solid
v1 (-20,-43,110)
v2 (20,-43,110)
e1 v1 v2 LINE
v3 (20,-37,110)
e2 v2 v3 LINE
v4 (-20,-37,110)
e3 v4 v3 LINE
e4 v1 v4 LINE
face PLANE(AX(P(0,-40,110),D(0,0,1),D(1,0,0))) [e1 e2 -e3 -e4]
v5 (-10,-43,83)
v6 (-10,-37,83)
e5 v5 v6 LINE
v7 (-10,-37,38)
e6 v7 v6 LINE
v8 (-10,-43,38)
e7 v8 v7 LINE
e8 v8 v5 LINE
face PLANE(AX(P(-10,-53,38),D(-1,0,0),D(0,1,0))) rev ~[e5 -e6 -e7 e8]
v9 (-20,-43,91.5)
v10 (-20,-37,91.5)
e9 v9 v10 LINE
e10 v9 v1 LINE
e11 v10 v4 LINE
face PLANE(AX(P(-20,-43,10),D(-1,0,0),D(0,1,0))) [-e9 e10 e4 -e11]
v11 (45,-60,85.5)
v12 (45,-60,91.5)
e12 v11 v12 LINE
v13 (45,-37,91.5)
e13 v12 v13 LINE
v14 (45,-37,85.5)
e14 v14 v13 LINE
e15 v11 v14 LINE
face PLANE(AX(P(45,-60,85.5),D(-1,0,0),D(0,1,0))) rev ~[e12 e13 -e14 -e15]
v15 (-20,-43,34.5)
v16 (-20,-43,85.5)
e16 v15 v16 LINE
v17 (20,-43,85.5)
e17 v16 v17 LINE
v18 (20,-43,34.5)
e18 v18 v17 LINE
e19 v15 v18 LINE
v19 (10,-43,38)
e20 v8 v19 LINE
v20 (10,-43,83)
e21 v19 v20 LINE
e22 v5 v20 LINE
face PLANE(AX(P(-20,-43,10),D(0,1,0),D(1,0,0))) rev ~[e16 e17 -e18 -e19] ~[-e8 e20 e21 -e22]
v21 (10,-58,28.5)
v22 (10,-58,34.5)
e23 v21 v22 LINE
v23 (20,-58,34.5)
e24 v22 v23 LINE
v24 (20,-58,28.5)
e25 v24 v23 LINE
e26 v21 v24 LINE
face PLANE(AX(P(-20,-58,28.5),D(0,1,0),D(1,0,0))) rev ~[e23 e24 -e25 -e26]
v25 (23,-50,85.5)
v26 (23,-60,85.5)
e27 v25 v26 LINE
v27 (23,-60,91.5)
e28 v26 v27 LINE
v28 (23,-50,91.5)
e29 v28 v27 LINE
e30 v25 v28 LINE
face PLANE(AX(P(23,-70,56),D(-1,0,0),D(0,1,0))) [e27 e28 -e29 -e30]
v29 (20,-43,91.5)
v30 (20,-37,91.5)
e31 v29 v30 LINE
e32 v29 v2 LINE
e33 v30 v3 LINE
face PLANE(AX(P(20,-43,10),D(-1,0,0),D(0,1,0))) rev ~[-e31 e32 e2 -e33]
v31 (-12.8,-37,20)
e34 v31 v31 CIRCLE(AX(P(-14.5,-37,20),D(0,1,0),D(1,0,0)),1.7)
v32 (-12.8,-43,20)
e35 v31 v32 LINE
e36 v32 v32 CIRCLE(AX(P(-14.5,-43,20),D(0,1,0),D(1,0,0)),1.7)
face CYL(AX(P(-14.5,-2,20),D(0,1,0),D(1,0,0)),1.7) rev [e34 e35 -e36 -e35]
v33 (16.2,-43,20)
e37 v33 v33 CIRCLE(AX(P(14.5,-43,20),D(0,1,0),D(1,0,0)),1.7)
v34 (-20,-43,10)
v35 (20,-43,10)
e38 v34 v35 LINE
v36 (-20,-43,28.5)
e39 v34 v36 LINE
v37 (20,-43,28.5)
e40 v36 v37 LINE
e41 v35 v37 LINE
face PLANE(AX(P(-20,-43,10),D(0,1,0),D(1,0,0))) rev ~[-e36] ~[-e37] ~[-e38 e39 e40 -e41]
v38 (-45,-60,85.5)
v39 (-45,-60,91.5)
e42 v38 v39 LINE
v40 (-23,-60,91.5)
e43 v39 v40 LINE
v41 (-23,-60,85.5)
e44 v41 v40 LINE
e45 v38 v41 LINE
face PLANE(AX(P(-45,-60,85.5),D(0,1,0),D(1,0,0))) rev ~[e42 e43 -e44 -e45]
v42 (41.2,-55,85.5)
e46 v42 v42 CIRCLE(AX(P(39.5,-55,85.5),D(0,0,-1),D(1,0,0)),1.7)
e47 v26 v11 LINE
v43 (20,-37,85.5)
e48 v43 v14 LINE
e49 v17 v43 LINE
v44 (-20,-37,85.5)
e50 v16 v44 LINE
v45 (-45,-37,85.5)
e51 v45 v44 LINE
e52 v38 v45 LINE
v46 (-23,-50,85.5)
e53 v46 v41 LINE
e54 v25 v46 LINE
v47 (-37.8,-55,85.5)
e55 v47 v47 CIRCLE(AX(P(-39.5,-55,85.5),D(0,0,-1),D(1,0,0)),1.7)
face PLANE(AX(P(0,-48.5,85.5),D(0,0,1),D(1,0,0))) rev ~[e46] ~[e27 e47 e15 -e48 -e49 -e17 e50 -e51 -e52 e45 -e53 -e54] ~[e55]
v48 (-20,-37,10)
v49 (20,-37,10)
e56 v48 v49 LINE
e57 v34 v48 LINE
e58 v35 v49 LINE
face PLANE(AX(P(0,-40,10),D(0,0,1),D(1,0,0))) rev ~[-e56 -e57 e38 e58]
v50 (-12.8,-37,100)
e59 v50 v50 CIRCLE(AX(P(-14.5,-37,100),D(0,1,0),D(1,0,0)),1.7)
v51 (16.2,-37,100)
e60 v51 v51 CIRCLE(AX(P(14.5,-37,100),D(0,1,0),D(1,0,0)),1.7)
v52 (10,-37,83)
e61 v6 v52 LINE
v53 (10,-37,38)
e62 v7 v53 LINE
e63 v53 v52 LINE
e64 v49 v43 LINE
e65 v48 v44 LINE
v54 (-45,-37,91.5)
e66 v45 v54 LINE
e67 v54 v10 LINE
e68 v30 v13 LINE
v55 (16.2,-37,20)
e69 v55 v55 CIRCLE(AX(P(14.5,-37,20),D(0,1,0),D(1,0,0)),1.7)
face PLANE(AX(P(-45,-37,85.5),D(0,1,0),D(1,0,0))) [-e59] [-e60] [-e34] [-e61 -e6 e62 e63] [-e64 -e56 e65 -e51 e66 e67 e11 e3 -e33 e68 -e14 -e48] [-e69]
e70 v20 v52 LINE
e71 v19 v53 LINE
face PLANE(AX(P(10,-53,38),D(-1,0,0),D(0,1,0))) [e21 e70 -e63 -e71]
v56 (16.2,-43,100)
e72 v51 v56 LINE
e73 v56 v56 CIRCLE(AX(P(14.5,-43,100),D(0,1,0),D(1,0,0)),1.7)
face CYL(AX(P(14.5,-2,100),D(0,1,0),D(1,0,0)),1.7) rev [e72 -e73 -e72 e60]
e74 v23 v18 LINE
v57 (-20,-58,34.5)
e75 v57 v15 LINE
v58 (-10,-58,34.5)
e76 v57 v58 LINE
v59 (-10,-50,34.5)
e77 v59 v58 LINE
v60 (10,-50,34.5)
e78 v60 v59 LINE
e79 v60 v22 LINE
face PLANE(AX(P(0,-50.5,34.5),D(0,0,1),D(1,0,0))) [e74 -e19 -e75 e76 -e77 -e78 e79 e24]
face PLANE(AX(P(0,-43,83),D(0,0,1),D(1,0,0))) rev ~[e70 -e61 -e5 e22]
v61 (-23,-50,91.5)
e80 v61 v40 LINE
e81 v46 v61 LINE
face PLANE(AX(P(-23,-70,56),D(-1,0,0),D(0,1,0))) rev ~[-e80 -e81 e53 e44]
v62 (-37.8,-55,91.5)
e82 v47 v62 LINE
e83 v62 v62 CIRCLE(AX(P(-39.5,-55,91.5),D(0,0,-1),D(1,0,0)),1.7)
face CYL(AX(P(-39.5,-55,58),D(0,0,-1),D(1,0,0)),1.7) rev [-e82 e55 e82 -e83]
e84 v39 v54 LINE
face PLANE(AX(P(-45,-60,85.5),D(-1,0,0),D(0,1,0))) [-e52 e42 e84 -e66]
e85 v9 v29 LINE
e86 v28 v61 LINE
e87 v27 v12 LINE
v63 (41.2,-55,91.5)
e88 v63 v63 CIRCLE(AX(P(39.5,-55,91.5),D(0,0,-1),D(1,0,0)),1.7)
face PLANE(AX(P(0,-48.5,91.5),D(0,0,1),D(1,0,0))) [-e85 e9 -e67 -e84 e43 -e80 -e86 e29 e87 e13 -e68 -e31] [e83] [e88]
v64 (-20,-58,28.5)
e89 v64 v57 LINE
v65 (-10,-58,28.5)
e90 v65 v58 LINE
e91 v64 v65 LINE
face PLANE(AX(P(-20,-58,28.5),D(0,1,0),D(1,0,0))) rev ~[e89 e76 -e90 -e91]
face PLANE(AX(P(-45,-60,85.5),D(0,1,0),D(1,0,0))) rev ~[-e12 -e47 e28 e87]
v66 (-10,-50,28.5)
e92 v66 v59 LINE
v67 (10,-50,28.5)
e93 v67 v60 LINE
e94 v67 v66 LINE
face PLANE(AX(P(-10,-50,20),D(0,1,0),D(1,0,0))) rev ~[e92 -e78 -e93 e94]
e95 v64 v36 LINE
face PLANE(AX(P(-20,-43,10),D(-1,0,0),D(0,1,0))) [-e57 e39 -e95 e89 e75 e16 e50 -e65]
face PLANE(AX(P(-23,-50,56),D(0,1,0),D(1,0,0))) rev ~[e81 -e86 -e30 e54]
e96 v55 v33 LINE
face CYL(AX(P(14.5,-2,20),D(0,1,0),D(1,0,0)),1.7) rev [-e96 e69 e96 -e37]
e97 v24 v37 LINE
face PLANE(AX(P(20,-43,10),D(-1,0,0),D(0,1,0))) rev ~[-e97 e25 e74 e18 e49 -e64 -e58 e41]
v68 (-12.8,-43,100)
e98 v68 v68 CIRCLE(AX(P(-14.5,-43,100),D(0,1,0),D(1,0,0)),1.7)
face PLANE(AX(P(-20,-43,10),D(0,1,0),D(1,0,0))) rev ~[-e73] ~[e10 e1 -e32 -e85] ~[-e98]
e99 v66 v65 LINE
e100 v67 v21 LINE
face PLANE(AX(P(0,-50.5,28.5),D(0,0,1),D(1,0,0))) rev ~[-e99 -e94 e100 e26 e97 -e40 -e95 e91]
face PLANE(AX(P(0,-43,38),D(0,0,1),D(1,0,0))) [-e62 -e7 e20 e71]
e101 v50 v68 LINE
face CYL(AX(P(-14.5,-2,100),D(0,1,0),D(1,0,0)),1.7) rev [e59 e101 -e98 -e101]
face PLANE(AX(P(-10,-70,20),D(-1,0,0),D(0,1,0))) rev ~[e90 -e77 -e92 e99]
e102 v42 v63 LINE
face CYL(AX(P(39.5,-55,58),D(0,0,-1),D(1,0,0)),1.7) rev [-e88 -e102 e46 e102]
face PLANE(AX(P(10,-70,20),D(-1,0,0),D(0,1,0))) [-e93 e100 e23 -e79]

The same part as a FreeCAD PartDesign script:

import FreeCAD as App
import Part
import Sketcher

V = App.Vector
Q = App.Units.Quantity


def add_polygon(sketch, points):
    """Adds a closed chain of lines whose ends are joined by coincident constraints."""
    first, n = sketch.GeometryCount, len(points)
    for a, b in zip(points, points[1:] + points[:1]):
        sketch.addGeometry(Part.LineSegment(App.Vector(*a, 0), App.Vector(*b, 0)), False)
    for i in range(n):
        sketch.addConstraint(Sketcher.Constraint("Coincident", first + i, 2, first + (i + 1) % n, 1))

doc = App.newDocument("Part")
body = doc.addObject("PartDesign::Body", "Body")

# Sketch on XY plane
sketch1 = doc.addObject("Sketcher::SketchObject", "Sketch")
body.addObject(sketch1)
sketch1.AttachmentSupport = (doc.XY_Plane, [""])
sketch1.MapMode = "FlatFace"
sketch1.AttachmentOffset = App.Placement(V(0, 0, 38), App.Rotation())
add_polygon(sketch1, [(-10, -31), (-10, -51), (10, -51), (10, -31)])  # lines 0-3
sketch1.addConstraint([
    Sketcher.Constraint("Vertical", 0),
    Sketcher.Constraint("Horizontal", 1),
    Sketcher.Constraint("Vertical", 2),
    Sketcher.Constraint("Horizontal", 3),
    Sketcher.Constraint("Equal", 3, 0),
    Sketcher.Constraint("DistanceX", 1, 1, 1, 2, Q("20 mm")),
    Sketcher.Constraint("DistanceX", 0, 2, -1, 1, Q("10 mm")),
    Sketcher.Constraint("DistanceY", 0, 2, -1, 1, Q("51 mm")),
])
pad1 = doc.addObject("PartDesign::Pad", "Pad")
body.addObject(pad1)
pad1.Profile = sketch1
pad1.Length = 45
body2 = doc.addObject("PartDesign::Body", "Body001")

# Sketch on XY plane
sketch2 = doc.addObject("Sketcher::SketchObject", "Sketch001")
body2.addObject(sketch2)
sketch2.AttachmentSupport = (doc.getObject("XY_Plane001"), [""])
sketch2.MapMode = "FlatFace"
sketch2.AttachmentOffset = App.Placement(V(0, 0, 20), App.Rotation())
add_polygon(sketch2, [(-10, -48), (-10, -68), (10, -68), (10, -48)])  # lines 0-3
sketch2.addConstraint([
    Sketcher.Constraint("Vertical", 0),
    Sketcher.Constraint("Horizontal", 1),
    Sketcher.Constraint("Vertical", 2),
    Sketcher.Constraint("Horizontal", 3),
    Sketcher.Constraint("Equal", 3, 0),
    Sketcher.Constraint("DistanceX", 1, 1, 1, 2, Q("20 mm")),
    Sketcher.Constraint("DistanceX", 0, 2, -1, 1, Q("10 mm")),
    Sketcher.Constraint("DistanceY", 0, 2, -1, 1, Q("68 mm")),
])
pad2 = doc.addObject("PartDesign::Pad", "Pad001")
body2.addObject(pad2)
pad2.Profile = sketch2
pad2.Length = 45
body3 = doc.addObject("PartDesign::Body", "Body002")

# Sketch on XY plane
sketch3 = doc.addObject("Sketcher::SketchObject", "Sketch002")
body3.addObject(sketch3)
sketch3.AttachmentSupport = (doc.getObject("XY_Plane002"), [""])
sketch3.MapMode = "FlatFace"
sketch3.AttachmentOffset = App.Placement(V(0, 0, 56), App.Rotation())
add_polygon(sketch3, [(-23, -48), (-23, -68), (23, -68), (23, -48)])  # lines 0-3
sketch3.addConstraint([
    Sketcher.Constraint("Vertical", 0),
    Sketcher.Constraint("Horizontal", 1),
    Sketcher.Constraint("Vertical", 2),
    Sketcher.Constraint("Horizontal", 3),
    Sketcher.Constraint("DistanceX", 1, 1, 1, 2, Q("46 mm")),
    Sketcher.Constraint("DistanceY", 0, 2, 0, 1, Q("20 mm")),
    Sketcher.Constraint("DistanceX", 0, 2, -1, 1, Q("23 mm")),
    Sketcher.Constraint("DistanceY", 0, 2, -1, 1, Q("68 mm")),
])
pad3 = doc.addObject("PartDesign::Pad", "Pad002")
body3.addObject(pad3)
pad3.Profile = sketch3
pad3.Length = 45
body4 = doc.addObject("PartDesign::Body", "Body003")

# Sketch on XZ plane
sketch4 = doc.addObject("Sketcher::SketchObject", "Sketch003")
body4.addObject(sketch4)
sketch4.AttachmentSupport = (doc.getObject("XZ_Plane003"), [""])
sketch4.MapMode = "FlatFace"
sketch4.addGeometry(Part.Circle(V(-14.5, 20, 0), V(0, 0, 1), 1.7), False)
sketch4.addConstraint([
    Sketcher.Constraint("Diameter", 0, Q("3.4 mm")),
    Sketcher.Constraint("DistanceY", -1, 1, 0, 3, Q("20 mm")),
    Sketcher.Constraint("DistanceX", 0, 3, -1, 1, Q("14.5 mm")),
])
pad4 = doc.addObject("PartDesign::Pad", "Pad003")
body4.addObject(pad4)
pad4.Profile = sketch4
pad4.Length = 50
body5 = doc.addObject("PartDesign::Body", "Body004")

# Sketch on XZ plane
sketch5 = doc.addObject("Sketcher::SketchObject", "Sketch004")
body5.addObject(sketch5)
sketch5.AttachmentSupport = (doc.getObject("XZ_Plane004"), [""])
sketch5.MapMode = "FlatFace"
sketch5.addGeometry(Part.Circle(V(14.5, 20, 0), V(0, 0, 1), 1.7), False)
sketch5.addConstraint([
    Sketcher.Constraint("Diameter", 0, Q("3.4 mm")),
    Sketcher.Constraint("DistanceY", -1, 1, 0, 3, Q("20 mm")),
    Sketcher.Constraint("DistanceX", -1, 1, 0, 3, Q("14.5 mm")),
])
pad5 = doc.addObject("PartDesign::Pad", "Pad004")
body5.addObject(pad5)
pad5.Profile = sketch5
pad5.Length = 50
body6 = doc.addObject("PartDesign::Body", "Body005")

# Sketch on XZ plane
sketch6 = doc.addObject("Sketcher::SketchObject", "Sketch005")
body6.addObject(sketch6)
sketch6.AttachmentSupport = (doc.getObject("XZ_Plane005"), [""])
sketch6.MapMode = "FlatFace"
sketch6.addGeometry(Part.Circle(V(-14.5, 100, 0), V(0, 0, 1), 1.7), False)
sketch6.addConstraint([
    Sketcher.Constraint("Diameter", 0, Q("3.4 mm")),
    Sketcher.Constraint("DistanceY", -1, 1, 0, 3, Q("100 mm")),
    Sketcher.Constraint("DistanceX", 0, 3, -1, 1, Q("14.5 mm")),
])
pad6 = doc.addObject("PartDesign::Pad", "Pad005")
body6.addObject(pad6)
pad6.Profile = sketch6
pad6.Length = 50
body7 = doc.addObject("PartDesign::Body", "Body006")

# Sketch on XZ plane
sketch7 = doc.addObject("Sketcher::SketchObject", "Sketch006")
body7.addObject(sketch7)
sketch7.AttachmentSupport = (doc.getObject("XZ_Plane006"), [""])
sketch7.MapMode = "FlatFace"
sketch7.addGeometry(Part.Circle(V(14.5, 100, 0), V(0, 0, 1), 1.7), False)
sketch7.addConstraint([
    Sketcher.Constraint("Diameter", 0, Q("3.4 mm")),
    Sketcher.Constraint("DistanceY", -1, 1, 0, 3, Q("100 mm")),
    Sketcher.Constraint("DistanceX", -1, 1, 0, 3, Q("14.5 mm")),
])
pad7 = doc.addObject("PartDesign::Pad", "Pad006")
body7.addObject(pad7)
pad7.Profile = sketch7
pad7.Length = 50
body8 = doc.addObject("PartDesign::Body", "Body007")

# Sketch on XY plane
sketch8 = doc.addObject("Sketcher::SketchObject", "Sketch007")
body8.addObject(sketch8)
sketch8.AttachmentSupport = (doc.getObject("XY_Plane007"), [""])
sketch8.MapMode = "FlatFace"
sketch8.AttachmentOffset = App.Placement(V(0, 0, 58), App.Rotation())
sketch8.addGeometry(Part.Circle(V(-39.5, -53, 0), V(0, 0, 1), 1.7), False)
sketch8.addConstraint([
    Sketcher.Constraint("Diameter", 0, Q("3.4 mm")),
    Sketcher.Constraint("DistanceY", 0, 3, -1, 1, Q("53 mm")),
    Sketcher.Constraint("DistanceX", 0, 3, -1, 1, Q("39.5 mm")),
])
pad8 = doc.addObject("PartDesign::Pad", "Pad007")
body8.addObject(pad8)
pad8.Profile = sketch8
pad8.Length = 50
body9 = doc.addObject("PartDesign::Body", "Body008")

# Sketch on XY plane
sketch9 = doc.addObject("Sketcher::SketchObject", "Sketch008")
body9.addObject(sketch9)
sketch9.AttachmentSupport = (doc.getObject("XY_Plane008"), [""])
sketch9.MapMode = "FlatFace"
sketch9.AttachmentOffset = App.Placement(V(0, 0, 58), App.Rotation())
sketch9.addGeometry(Part.Circle(V(39.5, -53, 0), V(0, 0, 1), 1.7), False)
sketch9.addConstraint([
    Sketcher.Constraint("Diameter", 0, Q("3.4 mm")),
    Sketcher.Constraint("DistanceY", 0, 3, -1, 1, Q("53 mm")),
    Sketcher.Constraint("DistanceX", -1, 1, 0, 3, Q("39.5 mm")),
])
pad9 = doc.addObject("PartDesign::Pad", "Pad008")
body9.addObject(pad9)
pad9.Profile = sketch9
pad9.Length = 50
body10 = doc.addObject("PartDesign::Body", "Body009")

# Sketch on XY plane
sketch10 = doc.addObject("Sketcher::SketchObject", "Sketch009")
body10.addObject(sketch10)
sketch10.AttachmentSupport = (doc.getObject("XY_Plane009"), [""])
sketch10.MapMode = "FlatFace"
sketch10.AttachmentOffset = App.Placement(V(0, 0, 85.5), App.Rotation())
add_polygon(sketch10, [(-45, -35), (-45, -58), (45, -58), (45, -35)])  # lines 0-3
sketch10.addConstraint([
    Sketcher.Constraint("Vertical", 0),
    Sketcher.Constraint("Horizontal", 1),
    Sketcher.Constraint("Vertical", 2),
    Sketcher.Constraint("Horizontal", 3),
    Sketcher.Constraint("DistanceX", 1, 1, 1, 2, Q("90 mm")),
    Sketcher.Constraint("DistanceY", 0, 2, 0, 1, Q("23 mm")),
    Sketcher.Constraint("DistanceX", 0, 2, -1, 1, Q("45 mm")),
    Sketcher.Constraint("DistanceY", 0, 2, -1, 1, Q("58 mm")),
])
pad10 = doc.addObject("PartDesign::Pad", "Pad009")
body10.addObject(pad10)
pad10.Profile = sketch10
pad10.Length = 6
body11 = doc.addObject("PartDesign::Body", "Body010")

# Sketch on XY plane
sketch11 = doc.addObject("Sketcher::SketchObject", "Sketch010")
body11.addObject(sketch11)
sketch11.AttachmentSupport = (doc.getObject("XY_Plane010"), [""])
sketch11.MapMode = "FlatFace"
sketch11.AttachmentOffset = App.Placement(V(0, 0, 10), App.Rotation())
add_polygon(sketch11, [(-20, -35), (-20, -41), (20, -41), (20, -35)])  # lines 0-3
sketch11.addConstraint([
    Sketcher.Constraint("Vertical", 0),
    Sketcher.Constraint("Horizontal", 1),
    Sketcher.Constraint("Vertical", 2),
    Sketcher.Constraint("Horizontal", 3),
    Sketcher.Constraint("DistanceX", 1, 1, 1, 2, Q("40 mm")),
    Sketcher.Constraint("DistanceY", 0, 2, 0, 1, Q("6 mm")),
    Sketcher.Constraint("DistanceX", 0, 2, -1, 1, Q("20 mm")),
    Sketcher.Constraint("DistanceY", 0, 2, -1, 1, Q("41 mm")),
])
pad11 = doc.addObject("PartDesign::Pad", "Pad010")
body11.addObject(pad11)
pad11.Profile = sketch11
pad11.Length = 100
doc.recompute()

boolean = doc.addObject("PartDesign::Boolean", "Boolean")
body11.addObject(boolean)
boolean.Type = "Fuse"
boolean.addObjects([body10])
body12 = doc.addObject("PartDesign::Body", "Body011")

# Sketch on XY plane
sketch12 = doc.addObject("Sketcher::SketchObject", "Sketch011")
body12.addObject(sketch12)
sketch12.AttachmentSupport = (doc.getObject("XY_Plane011"), [""])
sketch12.MapMode = "FlatFace"
sketch12.AttachmentOffset = App.Placement(V(0, 0, 28.5), App.Rotation())
add_polygon(sketch12, [(-20, -41), (-20, -56), (20, -56), (20, -41)])  # lines 0-3
sketch12.addConstraint([
    Sketcher.Constraint("Vertical", 0),
    Sketcher.Constraint("Horizontal", 1),
    Sketcher.Constraint("Vertical", 2),
    Sketcher.Constraint("Horizontal", 3),
    Sketcher.Constraint("DistanceX", 1, 1, 1, 2, Q("40 mm")),
    Sketcher.Constraint("DistanceY", 0, 2, 0, 1, Q("15 mm")),
    Sketcher.Constraint("DistanceX", 0, 2, -1, 1, Q("20 mm")),
    Sketcher.Constraint("DistanceY", 0, 2, -1, 1, Q("56 mm")),
])
pad12 = doc.addObject("PartDesign::Pad", "Pad011")
body12.addObject(pad12)
pad12.Profile = sketch12
pad12.Length = 6
doc.recompute()

boolean2 = doc.addObject("PartDesign::Boolean", "Boolean001")
body12.addObject(boolean2)
boolean2.Type = "Fuse"
boolean2.addObjects([body11])
doc.recompute()

boolean3 = doc.addObject("PartDesign::Boolean", "Boolean002")
body12.addObject(boolean3)
boolean3.Type = "Cut"
boolean3.addObjects([body9])
doc.recompute()

boolean4 = doc.addObject("PartDesign::Boolean", "Boolean003")
body12.addObject(boolean4)
boolean4.Type = "Cut"
boolean4.addObjects([body8])
doc.recompute()

boolean5 = doc.addObject("PartDesign::Boolean", "Boolean004")
body12.addObject(boolean5)
boolean5.Type = "Cut"
boolean5.addObjects([body7])
doc.recompute()

boolean6 = doc.addObject("PartDesign::Boolean", "Boolean005")
body12.addObject(boolean6)
boolean6.Type = "Cut"
boolean6.addObjects([body6])
doc.recompute()

boolean7 = doc.addObject("PartDesign::Boolean", "Boolean006")
body12.addObject(boolean7)
boolean7.Type = "Cut"
boolean7.addObjects([body5])
doc.recompute()

boolean8 = doc.addObject("PartDesign::Boolean", "Boolean007")
body12.addObject(boolean8)
boolean8.Type = "Cut"
boolean8.addObjects([body4])
doc.recompute()

boolean9 = doc.addObject("PartDesign::Boolean", "Boolean008")
body12.addObject(boolean9)
boolean9.Type = "Cut"
boolean9.addObjects([body3])
doc.recompute()

boolean10 = doc.addObject("PartDesign::Boolean", "Boolean009")
body12.addObject(boolean10)
boolean10.Type = "Cut"
boolean10.addObjects([body2])
doc.recompute()

boolean11 = doc.addObject("PartDesign::Boolean", "Boolean010")
body12.addObject(boolean11)
boolean11.Type = "Cut"
boolean11.addObjects([body])
body13 = doc.addObject("PartDesign::Body", "Body012")
doc.recompute()

body12.Placement = App.Placement(V(0, -2, 0), App.Rotation(V(0, 0, 1), 0))
boolean12 = doc.addObject("PartDesign::Boolean", "Boolean011")
body13.addObject(boolean12)
boolean12.Type = "Fuse"
boolean12.addObjects([body12])

doc.recompute()
